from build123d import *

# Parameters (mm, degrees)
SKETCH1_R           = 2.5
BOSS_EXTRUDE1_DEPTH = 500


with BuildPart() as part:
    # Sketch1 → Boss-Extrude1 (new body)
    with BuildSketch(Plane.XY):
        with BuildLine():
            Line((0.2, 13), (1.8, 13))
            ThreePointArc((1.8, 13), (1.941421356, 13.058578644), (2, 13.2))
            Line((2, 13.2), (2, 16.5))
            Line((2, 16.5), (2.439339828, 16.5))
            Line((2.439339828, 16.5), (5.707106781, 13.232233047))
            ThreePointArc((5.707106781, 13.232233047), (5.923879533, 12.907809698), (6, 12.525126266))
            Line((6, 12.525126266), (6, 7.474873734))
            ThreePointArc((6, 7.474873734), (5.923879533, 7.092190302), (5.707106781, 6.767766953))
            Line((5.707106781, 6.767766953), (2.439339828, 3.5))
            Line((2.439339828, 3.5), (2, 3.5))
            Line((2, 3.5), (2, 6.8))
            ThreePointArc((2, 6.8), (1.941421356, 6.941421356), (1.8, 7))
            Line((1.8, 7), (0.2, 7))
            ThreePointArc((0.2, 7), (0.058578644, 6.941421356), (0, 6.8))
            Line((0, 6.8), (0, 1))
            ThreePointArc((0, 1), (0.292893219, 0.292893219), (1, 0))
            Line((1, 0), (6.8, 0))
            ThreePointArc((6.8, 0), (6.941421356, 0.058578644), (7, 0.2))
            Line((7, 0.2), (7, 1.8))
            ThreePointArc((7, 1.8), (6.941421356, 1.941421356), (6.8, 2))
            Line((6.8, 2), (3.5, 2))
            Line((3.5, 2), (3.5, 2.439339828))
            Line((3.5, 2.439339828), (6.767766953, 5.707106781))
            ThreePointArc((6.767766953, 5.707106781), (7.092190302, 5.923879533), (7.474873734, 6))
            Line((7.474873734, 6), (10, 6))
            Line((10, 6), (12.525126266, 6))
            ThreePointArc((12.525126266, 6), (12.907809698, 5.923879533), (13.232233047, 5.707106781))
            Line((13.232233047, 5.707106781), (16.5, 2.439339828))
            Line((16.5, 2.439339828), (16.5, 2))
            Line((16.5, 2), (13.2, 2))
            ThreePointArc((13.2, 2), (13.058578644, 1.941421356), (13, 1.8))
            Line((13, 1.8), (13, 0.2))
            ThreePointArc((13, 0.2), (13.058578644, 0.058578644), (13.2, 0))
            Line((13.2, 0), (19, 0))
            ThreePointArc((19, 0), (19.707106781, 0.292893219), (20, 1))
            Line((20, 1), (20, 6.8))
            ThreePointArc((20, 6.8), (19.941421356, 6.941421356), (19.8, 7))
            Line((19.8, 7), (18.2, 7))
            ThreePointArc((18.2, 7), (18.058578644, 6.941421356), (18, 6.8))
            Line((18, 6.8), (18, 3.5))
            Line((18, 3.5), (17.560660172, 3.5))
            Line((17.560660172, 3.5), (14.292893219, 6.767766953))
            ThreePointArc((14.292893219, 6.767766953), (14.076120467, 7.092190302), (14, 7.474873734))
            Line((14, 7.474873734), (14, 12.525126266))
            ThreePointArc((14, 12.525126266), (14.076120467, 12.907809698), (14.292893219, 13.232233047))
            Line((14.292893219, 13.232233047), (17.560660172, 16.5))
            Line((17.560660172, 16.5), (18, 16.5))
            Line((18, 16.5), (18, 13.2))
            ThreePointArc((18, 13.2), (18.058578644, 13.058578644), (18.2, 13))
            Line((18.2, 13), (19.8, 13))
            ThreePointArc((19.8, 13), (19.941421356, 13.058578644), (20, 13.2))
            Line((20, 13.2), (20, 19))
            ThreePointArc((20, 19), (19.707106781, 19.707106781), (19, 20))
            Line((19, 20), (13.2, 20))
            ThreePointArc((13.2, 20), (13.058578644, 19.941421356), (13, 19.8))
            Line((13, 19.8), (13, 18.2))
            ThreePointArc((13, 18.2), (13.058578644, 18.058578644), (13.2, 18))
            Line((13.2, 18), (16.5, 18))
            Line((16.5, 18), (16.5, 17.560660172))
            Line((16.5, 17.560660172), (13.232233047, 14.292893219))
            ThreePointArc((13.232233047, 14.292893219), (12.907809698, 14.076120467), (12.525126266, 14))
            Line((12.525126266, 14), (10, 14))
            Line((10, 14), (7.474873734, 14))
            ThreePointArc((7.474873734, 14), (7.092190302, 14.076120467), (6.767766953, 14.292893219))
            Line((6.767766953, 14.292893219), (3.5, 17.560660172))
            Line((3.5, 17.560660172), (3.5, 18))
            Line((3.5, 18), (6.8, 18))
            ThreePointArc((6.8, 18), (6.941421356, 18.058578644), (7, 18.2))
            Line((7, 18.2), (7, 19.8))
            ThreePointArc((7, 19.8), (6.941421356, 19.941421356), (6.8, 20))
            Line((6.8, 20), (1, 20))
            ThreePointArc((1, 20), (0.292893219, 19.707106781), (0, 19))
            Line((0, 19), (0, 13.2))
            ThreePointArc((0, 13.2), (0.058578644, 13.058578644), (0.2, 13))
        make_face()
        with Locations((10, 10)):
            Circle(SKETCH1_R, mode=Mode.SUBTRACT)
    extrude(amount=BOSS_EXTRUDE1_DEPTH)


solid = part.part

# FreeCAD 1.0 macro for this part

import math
import FreeCAD as App
import Part
import Sketcher

doc = App.newDocument("Part")
body = doc.addObject("PartDesign::Body", "Body")

sketch1 = body.newObject("Sketcher::SketchObject", "Sketch")
sketch1.AttachmentSupport = (doc.getObject("XY_Plane"), [""])
sketch1.MapMode = "FlatFace"
sketch1.addGeometry([
    Part.LineSegment(App.Vector(0.2, 13, 0), App.Vector(1.8, 13, 0)),
    Part.ArcOfCircle(Part.Circle(App.Vector(1.8, 13.2, 0), App.Vector(0, 0, 1), 0.2), math.radians(-90), math.radians(0)),
    Part.LineSegment(App.Vector(2, 13.2, 0), App.Vector(2, 16.5, 0)),
    Part.LineSegment(App.Vector(2, 16.5, 0), App.Vector(2.44, 16.5, 0)),
    Part.LineSegment(App.Vector(2.44, 16.5, 0), App.Vector(5.71, 13.23, 0)),
    Part.ArcOfCircle(Part.Circle(App.Vector(5, 12.53, 0), App.Vector(0, 0, 1), 1), math.radians(0), math.radians(45)),
    Part.LineSegment(App.Vector(6, 12.53, 0), App.Vector(6, 7.47, 0)),
    Part.ArcOfCircle(Part.Circle(App.Vector(5, 7.47, 0), App.Vector(0, 0, 1), 1), math.radians(-45), math.radians(0)),
    Part.LineSegment(App.Vector(5.71, 6.77, 0), App.Vector(2.44, 3.5, 0)),
    Part.LineSegment(App.Vector(2.44, 3.5, 0), App.Vector(2, 3.5, 0)),
    Part.LineSegment(App.Vector(2, 3.5, 0), App.Vector(2, 6.8, 0)),
    Part.ArcOfCircle(Part.Circle(App.Vector(1.8, 6.8, 0), App.Vector(0, 0, 1), 0.2), math.radians(0), math.radians(90)),
    Part.LineSegment(App.Vector(1.8, 7, 0), App.Vector(0.2, 7, 0)),
    Part.ArcOfCircle(Part.Circle(App.Vector(0.2, 6.8, 0), App.Vector(0, 0, 1), 0.2), math.radians(90), math.radians(180)),
    Part.LineSegment(App.Vector(0, 6.8, 0), App.Vector(0, 1, 0)),
    Part.ArcOfCircle(Part.Circle(App.Vector(1, 1, 0), App.Vector(0, 0, 1), 1), math.radians(-180), math.radians(-90)),
    Part.LineSegment(App.Vector(1, 0, 0), App.Vector(6.8, 0, 0)),
    Part.ArcOfCircle(Part.Circle(App.Vector(6.8, 0.2, 0), App.Vector(0, 0, 1), 0.2), math.radians(-90), math.radians(0)),
    Part.LineSegment(App.Vector(7, 0.2, 0), App.Vector(7, 1.8, 0)),
    Part.ArcOfCircle(Part.Circle(App.Vector(6.8, 1.8, 0), App.Vector(0, 0, 1), 0.2), math.radians(0), math.radians(90)),
    Part.LineSegment(App.Vector(6.8, 2, 0), App.Vector(3.5, 2, 0)),
    Part.LineSegment(App.Vector(3.5, 2, 0), App.Vector(3.5, 2.44, 0)),
    Part.LineSegment(App.Vector(3.5, 2.44, 0), App.Vector(6.77, 5.71, 0)),
    Part.ArcOfCircle(Part.Circle(App.Vector(7.47, 5, 0), App.Vector(0, 0, 1), 1), math.radians(90), math.radians(135)),
    Part.LineSegment(App.Vector(7.47, 6, 0), App.Vector(12.53, 6, 0)),
    Part.ArcOfCircle(Part.Circle(App.Vector(12.53, 5, 0), App.Vector(0, 0, 1), 1), math.radians(45), math.radians(90)),
    Part.LineSegment(App.Vector(13.23, 5.71, 0), App.Vector(16.5, 2.44, 0)),
    Part.LineSegment(App.Vector(16.5, 2.44, 0), App.Vector(16.5, 2, 0)),
    Part.LineSegment(App.Vector(16.5, 2, 0), App.Vector(13.2, 2, 0)),
    Part.ArcOfCircle(Part.Circle(App.Vector(13.2, 1.8, 0), App.Vector(0, 0, 1), 0.2), math.radians(90), math.radians(180)),
    Part.LineSegment(App.Vector(13, 1.8, 0), App.Vector(13, 0.2, 0)),
    Part.ArcOfCircle(Part.Circle(App.Vector(13.2, 0.2, 0), App.Vector(0, 0, 1), 0.2), math.radians(-180), math.radians(-90)),
    Part.LineSegment(App.Vector(13.2, 0, 0), App.Vector(19, 0, 0)),
    Part.ArcOfCircle(Part.Circle(App.Vector(19, 1, 0), App.Vector(0, 0, 1), 1), math.radians(-90), math.radians(0)),
    Part.LineSegment(App.Vector(20, 1, 0), App.Vector(20, 6.8, 0)),
    Part.ArcOfCircle(Part.Circle(App.Vector(19.8, 6.8, 0), App.Vector(0, 0, 1), 0.2), math.radians(0), math.radians(90)),
    Part.LineSegment(App.Vector(19.8, 7, 0), App.Vector(18.2, 7, 0)),
    Part.ArcOfCircle(Part.Circle(App.Vector(18.2, 6.8, 0), App.Vector(0, 0, 1), 0.2), math.radians(90), math.radians(180)),
    Part.LineSegment(App.Vector(18, 6.8, 0), App.Vector(18, 3.5, 0)),
    Part.LineSegment(App.Vector(18, 3.5, 0), App.Vector(17.56, 3.5, 0)),
    Part.LineSegment(App.Vector(17.56, 3.5, 0), App.Vector(14.29, 6.77, 0)),
    Part.ArcOfCircle(Part.Circle(App.Vector(15, 7.47, 0), App.Vector(0, 0, 1), 1), math.radians(180), math.radians(225)),
    Part.LineSegment(App.Vector(14, 7.47, 0), App.Vector(14, 12.53, 0)),
    Part.ArcOfCircle(Part.Circle(App.Vector(15, 12.53, 0), App.Vector(0, 0, 1), 1), math.radians(135), math.radians(180)),
    Part.LineSegment(App.Vector(14.29, 13.23, 0), App.Vector(17.56, 16.5, 0)),
    Part.LineSegment(App.Vector(17.56, 16.5, 0), App.Vector(18, 16.5, 0)),
    Part.LineSegment(App.Vector(18, 16.5, 0), App.Vector(18, 13.2, 0)),
    Part.ArcOfCircle(Part.Circle(App.Vector(18.2, 13.2, 0), App.Vector(0, 0, 1), 0.2), math.radians(-180), math.radians(-90)),
    Part.LineSegment(App.Vector(18.2, 13, 0), App.Vector(19.8, 13, 0)),
    Part.ArcOfCircle(Part.Circle(App.Vector(19.8, 13.2, 0), App.Vector(0, 0, 1), 0.2), math.radians(-90), math.radians(0)),
    Part.LineSegment(App.Vector(20, 13.2, 0), App.Vector(20, 19, 0)),
    Part.ArcOfCircle(Part.Circle(App.Vector(19, 19, 0), App.Vector(0, 0, 1), 1), math.radians(0), math.radians(90)),
    Part.LineSegment(App.Vector(19, 20, 0), App.Vector(13.2, 20, 0)),
    Part.ArcOfCircle(Part.Circle(App.Vector(13.2, 19.8, 0), App.Vector(0, 0, 1), 0.2), math.radians(90), math.radians(180)),
    Part.LineSegment(App.Vector(13, 19.8, 0), App.Vector(13, 18.2, 0)),
    Part.ArcOfCircle(Part.Circle(App.Vector(13.2, 18.2, 0), App.Vector(0, 0, 1), 0.2), math.radians(-180), math.radians(-90)),
    Part.LineSegment(App.Vector(13.2, 18, 0), App.Vector(16.5, 18, 0)),
    Part.LineSegment(App.Vector(16.5, 18, 0), App.Vector(16.5, 17.56, 0)),
    Part.LineSegment(App.Vector(16.5, 17.56, 0), App.Vector(13.23, 14.29, 0)),
    Part.ArcOfCircle(Part.Circle(App.Vector(12.53, 15, 0), App.Vector(0, 0, 1), 1), math.radians(-90), math.radians(-45)),
    Part.LineSegment(App.Vector(12.53, 14, 0), App.Vector(7.47, 14, 0)),
    Part.ArcOfCircle(Part.Circle(App.Vector(7.47, 15, 0), App.Vector(0, 0, 1), 1), math.radians(-135), math.radians(-90)),
    Part.LineSegment(App.Vector(6.77, 14.29, 0), App.Vector(3.5, 17.56, 0)),
    Part.LineSegment(App.Vector(3.5, 17.56, 0), App.Vector(3.5, 18, 0)),
    Part.LineSegment(App.Vector(3.5, 18, 0), App.Vector(6.8, 18, 0)),
    Part.ArcOfCircle(Part.Circle(App.Vector(6.8, 18.2, 0), App.Vector(0, 0, 1), 0.2), math.radians(-90), math.radians(0)),
    Part.LineSegment(App.Vector(7, 18.2, 0), App.Vector(7, 19.8, 0)),
    Part.ArcOfCircle(Part.Circle(App.Vector(6.8, 19.8, 0), App.Vector(0, 0, 1), 0.2), math.radians(0), math.radians(90)),
    Part.LineSegment(App.Vector(6.8, 20, 0), App.Vector(1, 20, 0)),
    Part.ArcOfCircle(Part.Circle(App.Vector(1, 19, 0), App.Vector(0, 0, 1), 1), math.radians(90), math.radians(180)),
    Part.LineSegment(App.Vector(0, 19, 0), App.Vector(0, 13.2, 0)),
    Part.ArcOfCircle(Part.Circle(App.Vector(0.2, 13.2, 0), App.Vector(0, 0, 1), 0.2), math.radians(-180), math.radians(-90)),
    Part.Circle(App.Vector(10, 10, 0), App.Vector(0, 0, 1), 2.5),
], False)
sketch1.addConstraint([
    Sketcher.Constraint("Tangent", 0, 2, 1, 1),
    Sketcher.Constraint("Tangent", 1, 2, 2, 1),
    Sketcher.Constraint("Coincident", 2, 2, 3, 1),
    Sketcher.Constraint("Coincident", 3, 2, 4, 1),
    Sketcher.Constraint("Tangent", 4, 2, 5, 2),
    Sketcher.Constraint("Tangent", 5, 1, 6, 1),
    Sketcher.Constraint("Tangent", 6, 2, 7, 2),
    Sketcher.Constraint("Tangent", 7, 1, 8, 1),
    Sketcher.Constraint("Coincident", 8, 2, 9, 1),
    Sketcher.Constraint("Coincident", 9, 2, 10, 1),
    Sketcher.Constraint("Tangent", 10, 2, 11, 1),
    Sketcher.Constraint("Tangent", 11, 2, 12, 1),
    Sketcher.Constraint("Tangent", 12, 2, 13, 1),
    Sketcher.Constraint("Tangent", 13, 2, 14, 1),
    Sketcher.Constraint("Tangent", 14, 2, 15, 1),
    Sketcher.Constraint("Tangent", 15, 2, 16, 1),
    Sketcher.Constraint("Tangent", 16, 2, 17, 1),
    Sketcher.Constraint("Tangent", 17, 2, 18, 1),
    Sketcher.Constraint("Tangent", 18, 2, 19, 1),
    Sketcher.Constraint("Tangent", 19, 2, 20, 1),
    Sketcher.Constraint("Coincident", 20, 2, 21, 1),
    Sketcher.Constraint("Coincident", 21, 2, 22, 1),
    Sketcher.Constraint("Tangent", 22, 2, 23, 2),
    Sketcher.Constraint("Tangent", 23, 1, 24, 1),
    Sketcher.Constraint("Tangent", 24, 2, 25, 2),
    Sketcher.Constraint("Tangent", 25, 1, 26, 1),
    Sketcher.Constraint("Coincident", 26, 2, 27, 1),
    Sketcher.Constraint("Coincident", 27, 2, 28, 1),
    Sketcher.Constraint("Tangent", 28, 2, 29, 1),
    Sketcher.Constraint("Tangent", 29, 2, 30, 1),
    Sketcher.Constraint("Tangent", 30, 2, 31, 1),
    Sketcher.Constraint("Tangent", 31, 2, 32, 1),
    Sketcher.Constraint("Tangent", 32, 2, 33, 1),
    Sketcher.Constraint("Tangent", 33, 2, 34, 1),
    Sketcher.Constraint("Tangent", 34, 2, 35, 1),
    Sketcher.Constraint("Tangent", 35, 2, 36, 1),
    Sketcher.Constraint("Tangent", 36, 2, 37, 1),
    Sketcher.Constraint("Tangent", 37, 2, 38, 1),
    Sketcher.Constraint("Coincident", 38, 2, 39, 1),
    Sketcher.Constraint("Coincident", 39, 2, 40, 1),
    Sketcher.Constraint("Tangent", 40, 2, 41, 2),
    Sketcher.Constraint("Tangent", 41, 1, 42, 1),
    Sketcher.Constraint("Tangent", 42, 2, 43, 2),
    Sketcher.Constraint("Tangent", 43, 1, 44, 1),
    Sketcher.Constraint("Coincident", 44, 2, 45, 1),
    Sketcher.Constraint("Coincident", 45, 2, 46, 1),
    Sketcher.Constraint("Tangent", 46, 2, 47, 1),
    Sketcher.Constraint("Tangent", 47, 2, 48, 1),
    Sketcher.Constraint("Tangent", 48, 2, 49, 1),
    Sketcher.Constraint("Tangent", 49, 2, 50, 1),
    Sketcher.Constraint("Tangent", 50, 2, 51, 1),
    Sketcher.Constraint("Tangent", 51, 2, 52, 1),
    Sketcher.Constraint("Tangent", 52, 2, 53, 1),
    Sketcher.Constraint("Tangent", 53, 2, 54, 1),
    Sketcher.Constraint("Tangent", 54, 2, 55, 1),
    Sketcher.Constraint("Tangent", 55, 2, 56, 1),
    Sketcher.Constraint("Coincident", 56, 2, 57, 1),
    Sketcher.Constraint("Coincident", 57, 2, 58, 1),
    Sketcher.Constraint("Tangent", 58, 2, 59, 2),
    Sketcher.Constraint("Tangent", 59, 1, 60, 1),
    Sketcher.Constraint("Tangent", 60, 2, 61, 2),
    Sketcher.Constraint("Tangent", 61, 1, 62, 1),
    Sketcher.Constraint("Coincident", 62, 2, 63, 1),
    Sketcher.Constraint("Coincident", 63, 2, 64, 1),
    Sketcher.Constraint("Tangent", 64, 2, 65, 1),
    Sketcher.Constraint("Tangent", 65, 2, 66, 1),
    Sketcher.Constraint("Tangent", 66, 2, 67, 1),
    Sketcher.Constraint("Tangent", 67, 2, 68, 1),
    Sketcher.Constraint("Tangent", 68, 2, 69, 1),
    Sketcher.Constraint("Tangent", 69, 2, 70, 1),
    Sketcher.Constraint("Tangent", 70, 2, 71, 1),
    Sketcher.Constraint("Tangent", 71, 2, 0, 1),
    Sketcher.Constraint("Horizontal", 0),
    Sketcher.Constraint("Vertical", 2),
    Sketcher.Constraint("Horizontal", 3),
    Sketcher.Constraint("Vertical", 6),
    Sketcher.Constraint("Horizontal", 9),
    Sketcher.Constraint("Vertical", 10),
    Sketcher.Constraint("Horizontal", 12),
    Sketcher.Constraint("Vertical", 14),
    Sketcher.Constraint("Horizontal", 16),
    Sketcher.Constraint("Vertical", 18),
    Sketcher.Constraint("Horizontal", 20),
    Sketcher.Constraint("Vertical", 21),
    Sketcher.Constraint("Horizontal", 24),
    Sketcher.Constraint("Vertical", 27),
    Sketcher.Constraint("Horizontal", 28),
    Sketcher.Constraint("Vertical", 30),
    Sketcher.Constraint("Horizontal", 32),
    Sketcher.Constraint("Vertical", 34),
    Sketcher.Constraint("Horizontal", 36),
    Sketcher.Constraint("Vertical", 38),
    Sketcher.Constraint("Horizontal", 39),
    Sketcher.Constraint("Vertical", 42),
    Sketcher.Constraint("Horizontal", 45),
    Sketcher.Constraint("Vertical", 46),
    Sketcher.Constraint("Horizontal", 48),
    Sketcher.Constraint("Vertical", 50),
    Sketcher.Constraint("Horizontal", 52),
    Sketcher.Constraint("Vertical", 54),
    Sketcher.Constraint("Horizontal", 56),
    Sketcher.Constraint("Vertical", 57),
    Sketcher.Constraint("Horizontal", 60),
    Sketcher.Constraint("Vertical", 63),
    Sketcher.Constraint("Horizontal", 64),
    Sketcher.Constraint("Vertical", 66),
    Sketcher.Constraint("Horizontal", 68),
    Sketcher.Constraint("Vertical", 70),
    Sketcher.Constraint("Equal", 5, 7),
    Sketcher.Constraint("Equal", 1, 11),
    Sketcher.Constraint("Equal", 11, 13),
    Sketcher.Constraint("Equal", 7, 15),
    Sketcher.Constraint("Equal", 13, 17),
    Sketcher.Constraint("Equal", 17, 19),
    Sketcher.Constraint("Equal", 15, 23),
    Sketcher.Constraint("Equal", 23, 25),
    Sketcher.Constraint("Equal", 19, 29),
    Sketcher.Constraint("Equal", 29, 31),
    Sketcher.Constraint("Equal", 25, 33),
    Sketcher.Constraint("Equal", 31, 35),
    Sketcher.Constraint("Equal", 35, 37),
    Sketcher.Constraint("Equal", 33, 41),
    Sketcher.Constraint("Equal", 41, 43),
    Sketcher.Constraint("Equal", 37, 47),
    Sketcher.Constraint("Equal", 47, 49),
    Sketcher.Constraint("Equal", 43, 51),
    Sketcher.Constraint("Equal", 49, 53),
    Sketcher.Constraint("Equal", 53, 55),
    Sketcher.Constraint("Equal", 51, 59),
    Sketcher.Constraint("Equal", 59, 61),
    Sketcher.Constraint("Equal", 55, 65),
    Sketcher.Constraint("Equal", 65, 67),
    Sketcher.Constraint("Equal", 61, 69),
    Sketcher.Constraint("Equal", 67, 71),
    Sketcher.Constraint("PointOnObject", 13, 2, -2),
    Sketcher.Constraint("PointOnObject", 15, 2, -1),
    Sketcher.Constraint("PointOnObject", 31, 2, -1),
    Sketcher.Constraint("PointOnObject", 69, 2, -2),
    Sketcher.Constraint("Perpendicular", 4, 8),
    Sketcher.Constraint("Parallel", 8, 22),
    Sketcher.Constraint("Perpendicular", 22, 26),
    Sketcher.Constraint("Parallel", 26, 40),
    Sketcher.Constraint("Perpendicular", 40, 44),
    Sketcher.Constraint("Parallel", 44, 58),
    Sketcher.Constraint("Perpendicular", 58, 62),
    Sketcher.Constraint("Horizontal", 19, 3, 29, 3),
    Sketcher.Constraint("Horizontal", 13, 3, 35, 3),
    Sketcher.Constraint("Horizontal", 7, 3, 41, 3),
    Sketcher.Constraint("Horizontal", 5, 3, 43, 3),
    Sketcher.Constraint("Horizontal", 1, 3, 47, 3),
    Sketcher.Constraint("Horizontal", 55, 3, 65, 3),
    Sketcher.Constraint("Horizontal", 53, 3, 67, 3),
    Sketcher.Constraint("Horizontal", 22, 2, 25, 1),
    Sketcher.Constraint("Horizontal", 21, 2, 26, 2),
    Sketcher.Constraint("Horizontal", 9, 2, 38, 2),
    Sketcher.Constraint("Horizontal", 3, 2, 44, 2),
    Sketcher.Constraint("Horizontal", 57, 2, 62, 2),
    Sketcher.Constraint("Vertical", 1, 3, 11, 3),
    Sketcher.Constraint("Vertical", 37, 3, 47, 3),
    Sketcher.Constraint("Vertical", 35, 3, 49, 3),
    Sketcher.Constraint("Vertical", 31, 3, 53, 3),
    Sketcher.Constraint("Vertical", 25, 3, 59, 3),
    Sketcher.Constraint("Vertical", 23, 3, 61, 3),
    Sketcher.Constraint("Vertical", 19, 3, 65, 3),
    Sketcher.Constraint("Vertical", 3, 2, 8, 2),
    Sketcher.Constraint("Vertical", 27, 2, 56, 2),
    Sketcher.Constraint("Equal", 20, 28),
    Sketcher.Constraint("Equal", 16, 32),
    Sketcher.Constraint("Equal", 12, 36),
    Sketcher.Constraint("Equal", 9, 39),
    Sketcher.Constraint("Equal", 64, 2),
    Sketcher.Constraint("Equal", 60, 6),
    Sketcher.Constraint("Equal", 2, 10),
    Sketcher.Constraint("Equal", 68, 14),
    Sketcher.Constraint("Equal", 48, 18),
    Sketcher.Constraint("Equal", 45, 21),
    Sketcher.Constraint("Equal", 34, 50),
    Sketcher.Constraint("Equal", 30, 54),
    Sketcher.Constraint("Equal", 27, 57),
    Sketcher.Constraint("Equal", 8, 22),
    Sketcher.Constraint("Diameter", 72, 5.0),
    Sketcher.Constraint("Radius", 5, 1.0),
    Sketcher.Constraint("Radius", 1, 0.2),
    Sketcher.Constraint("DistanceX", 0, 1, 0, 2, 1.6),
    Sketcher.Constraint("DistanceX", 16, 1, 16, 2, 5.8),
    Sketcher.Constraint("DistanceX", 20, 2, 20, 1, 3.3),
    Sketcher.Constraint("DistanceX", -1, 1, 5, 3, 5.0),
    Sketcher.Constraint("DistanceX", -1, 1, 33, 3, 19.0),
    Sketcher.Constraint("DistanceX", -1, 1, 72, 3, 10.0),
    Sketcher.Constraint("DistanceY", -1, 1, 72, 3, 10.0),
    Sketcher.Constraint("DistanceX", 3, 1, 3, 2, 0.43934),
])
pad1 = body.newObject("PartDesign::Pad", "Pad")
pad1.Profile = sketch1
pad1.Length = 500

doc.recompute()
